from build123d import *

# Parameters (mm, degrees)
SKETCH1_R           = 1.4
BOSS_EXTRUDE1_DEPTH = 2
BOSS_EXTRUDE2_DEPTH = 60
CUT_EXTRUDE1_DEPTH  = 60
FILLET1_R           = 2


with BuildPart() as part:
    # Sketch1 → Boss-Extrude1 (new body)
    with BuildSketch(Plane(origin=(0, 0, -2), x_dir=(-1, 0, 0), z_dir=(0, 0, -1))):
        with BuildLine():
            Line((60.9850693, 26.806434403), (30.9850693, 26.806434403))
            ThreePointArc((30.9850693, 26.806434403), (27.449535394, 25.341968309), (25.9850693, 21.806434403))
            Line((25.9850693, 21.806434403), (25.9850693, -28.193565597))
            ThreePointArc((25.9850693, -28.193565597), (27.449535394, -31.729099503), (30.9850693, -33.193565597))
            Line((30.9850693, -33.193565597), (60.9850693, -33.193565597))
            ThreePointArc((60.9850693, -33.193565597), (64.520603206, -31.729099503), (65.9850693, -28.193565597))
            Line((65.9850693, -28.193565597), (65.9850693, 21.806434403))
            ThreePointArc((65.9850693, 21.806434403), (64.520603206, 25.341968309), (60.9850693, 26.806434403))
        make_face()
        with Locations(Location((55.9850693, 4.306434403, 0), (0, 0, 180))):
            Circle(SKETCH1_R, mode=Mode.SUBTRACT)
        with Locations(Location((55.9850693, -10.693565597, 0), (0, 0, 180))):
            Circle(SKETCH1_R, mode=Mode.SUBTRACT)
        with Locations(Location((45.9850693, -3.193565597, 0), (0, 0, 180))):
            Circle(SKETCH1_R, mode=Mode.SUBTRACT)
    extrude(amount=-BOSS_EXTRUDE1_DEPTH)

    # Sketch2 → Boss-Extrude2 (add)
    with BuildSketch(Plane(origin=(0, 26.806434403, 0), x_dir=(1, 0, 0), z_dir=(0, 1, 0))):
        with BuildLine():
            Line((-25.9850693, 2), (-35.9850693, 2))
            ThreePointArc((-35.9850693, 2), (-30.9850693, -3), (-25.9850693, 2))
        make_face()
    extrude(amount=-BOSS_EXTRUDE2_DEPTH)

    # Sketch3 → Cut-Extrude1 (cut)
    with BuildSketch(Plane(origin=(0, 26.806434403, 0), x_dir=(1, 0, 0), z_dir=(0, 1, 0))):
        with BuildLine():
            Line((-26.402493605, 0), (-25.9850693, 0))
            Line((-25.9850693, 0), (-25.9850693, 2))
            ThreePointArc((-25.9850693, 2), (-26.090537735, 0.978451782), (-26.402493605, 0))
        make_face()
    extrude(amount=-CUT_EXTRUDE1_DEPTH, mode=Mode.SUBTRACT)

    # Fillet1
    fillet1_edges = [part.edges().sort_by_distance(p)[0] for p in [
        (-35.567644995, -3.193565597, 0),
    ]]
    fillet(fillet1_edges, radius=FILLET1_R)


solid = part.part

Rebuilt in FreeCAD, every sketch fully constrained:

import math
import FreeCAD as App
import Part
import Sketcher
Q = App.Units.Quantity


def edges_at(feature, points):
    """Names of the edges that pass closest to the given points."""
    edges = feature.Shape.Edges
    near = lambda p: min(range(len(edges)), key=lambda i: edges[i].distToShape(Part.Vertex(*p))[0])
    return sorted({f"Edge{near(p) + 1}" for p in points})

doc = App.newDocument("Part")
body = doc.addObject("PartDesign::Body", "Body")

sketch1 = body.newObject("Sketcher::SketchObject", "Sketch")
sketch1.AttachmentSupport = (doc.getObject("XY_Plane"), [""])
sketch1.MapMode = "FlatFace"
sketch1.AttachmentOffset = App.Placement(App.Vector(0, 0, -2), App.Rotation())
sketch1.addGeometry(Part.LineSegment(App.Vector(-61, 26.8, 0), App.Vector(-31, 26.8, 0)), False)
sketch1.addGeometry(Part.ArcOfCircle(Part.Circle(App.Vector(-31, 21.8, 0), App.Vector(0, 0, 1), 5), math.radians(0), math.radians(90)), False)
sketch1.addGeometry(Part.LineSegment(App.Vector(-26, 21.8, 0), App.Vector(-26, -28.2, 0)), False)
sketch1.addGeometry(Part.ArcOfCircle(Part.Circle(App.Vector(-31, -28.2, 0), App.Vector(0, 0, 1), 5), math.radians(-90), math.radians(0)), False)
sketch1.addGeometry(Part.LineSegment(App.Vector(-31, -33.2, 0), App.Vector(-61, -33.2, 0)), False)
sketch1.addGeometry(Part.ArcOfCircle(Part.Circle(App.Vector(-61, -28.2, 0), App.Vector(0, 0, 1), 5), math.radians(180), math.radians(270)), False)
sketch1.addGeometry(Part.LineSegment(App.Vector(-66, -28.2, 0), App.Vector(-66, 21.8, 0)), False)
sketch1.addGeometry(Part.ArcOfCircle(Part.Circle(App.Vector(-61, 21.8, 0), App.Vector(0, 0, 1), 5), math.radians(90), math.radians(180)), False)
sketch1.addGeometry(Part.Circle(App.Vector(-56, -10.7, 0), App.Vector(0, 0, 1), 1.4), False)
sketch1.addGeometry(Part.Circle(App.Vector(-46, -3.2, 0), App.Vector(0, 0, 1), 1.4), False)
sketch1.addGeometry(Part.Circle(App.Vector(-56, 4.3, 0), App.Vector(0, 0, 1), 1.4), False)
sketch1.addConstraint(Sketcher.Constraint("Tangent", 0, 2, 1, 2))
sketch1.addConstraint(Sketcher.Constraint("Tangent", 1, 1, 2, 1))
sketch1.addConstraint(Sketcher.Constraint("Tangent", 2, 2, 3, 2))
sketch1.addConstraint(Sketcher.Constraint("Tangent", 3, 1, 4, 1))
sketch1.addConstraint(Sketcher.Constraint("Tangent", 4, 2, 5, 2))
sketch1.addConstraint(Sketcher.Constraint("Tangent", 5, 1, 6, 1))
sketch1.addConstraint(Sketcher.Constraint("Tangent", 6, 2, 7, 2))
sketch1.addConstraint(Sketcher.Constraint("Tangent", 7, 1, 0, 1))
sketch1.addConstraint(Sketcher.Constraint("Horizontal", 0))
sketch1.addConstraint(Sketcher.Constraint("Vertical", 2))
sketch1.addConstraint(Sketcher.Constraint("Horizontal", 4))
sketch1.addConstraint(Sketcher.Constraint("Vertical", 6))
sketch1.addConstraint(Sketcher.Constraint("Equal", 1, 3))
sketch1.addConstraint(Sketcher.Constraint("Equal", 3, 5))
sketch1.addConstraint(Sketcher.Constraint("Equal", 5, 7))
sketch1.addConstraint(Sketcher.Constraint("Equal", 8, 9))
sketch1.addConstraint(Sketcher.Constraint("Equal", 9, 10))
sketch1.addConstraint(Sketcher.Constraint("Vertical", 8, 3, 10, 3))
sketch1.addConstraint(Sketcher.Constraint("Radius", 1, Q("5 mm")))
sketch1.addConstraint(Sketcher.Constraint("Diameter", 8, Q("2.8 mm")))
sketch1.addConstraint(Sketcher.Constraint("DistanceX", 0, 1, 0, 2, Q("30 mm")))
sketch1.addConstraint(Sketcher.Constraint("DistanceY", 2, 2, 2, 1, Q("50 mm")))
sketch1.addConstraint(Sketcher.Constraint("DistanceX", 5, 3, 8, 3, Q("5 mm")))
sketch1.addConstraint(Sketcher.Constraint("DistanceX", 8, 3, 9, 3, Q("10 mm")))
sketch1.addConstraint(Sketcher.Constraint("DistanceY", 9, 3, 1, 3, Q("25 mm")))
sketch1.addConstraint(Sketcher.Constraint("DistanceY", 8, 3, 10, 3, Q("15 mm")))
sketch1.addConstraint(Sketcher.Constraint("DistanceY", 5, 3, 8, 3, Q("17.5 mm")))
sketch1.addConstraint(Sketcher.Constraint("DistanceX", 1, 3, -1, 1, Q("30.985069 mm")))
sketch1.addConstraint(Sketcher.Constraint("DistanceY", -1, 1, 1, 3, Q("21.806434 mm")))
pad1 = body.newObject("PartDesign::Pad", "Pad")
pad1.Profile = sketch1
pad1.Length = 2

sketch2 = body.newObject("Sketcher::SketchObject", "Sketch001")
sketch2.AttachmentSupport = (doc.getObject("XZ_Plane"), [""])
sketch2.MapMode = "FlatFace"
sketch2.AttachmentOffset = App.Placement(App.Vector(0, 0, -26.806434), App.Rotation())
sketch2.addGeometry(Part.LineSegment(App.Vector(-26, -2, 0), App.Vector(-36, -2, 0)), False)
sketch2.addGeometry(Part.ArcOfCircle(Part.Circle(App.Vector(-31, -2, 0), App.Vector(0, 0, 1), 5), math.radians(0), math.radians(180)), False)
sketch2.addConstraint(Sketcher.Constraint("Coincident", 0, 1, 1, 1))
sketch2.addConstraint(Sketcher.Constraint("Coincident", 1, 2, 0, 2))
sketch2.addConstraint(Sketcher.Constraint("Horizontal", 0))
sketch2.addConstraint(Sketcher.Constraint("Horizontal", 1, 3, 0, 1))
sketch2.addConstraint(Sketcher.Constraint("Radius", 1, Q("5 mm")))
sketch2.addConstraint(Sketcher.Constraint("DistanceY", 1, 3, -1, 1, Q("2 mm")))
sketch2.addConstraint(Sketcher.Constraint("DistanceX", 1, 3, -1, 1, Q("30.985069 mm")))
pad2 = body.newObject("PartDesign::Pad", "Pad001")
pad2.Profile = sketch2
pad2.Length = 60

sketch3 = body.newObject("Sketcher::SketchObject", "Sketch002")
sketch3.AttachmentSupport = (doc.getObject("XZ_Plane"), [""])
sketch3.MapMode = "FlatFace"
sketch3.AttachmentOffset = App.Placement(App.Vector(0, 0, -26.806434), App.Rotation())
sketch3.addGeometry(Part.LineSegment(App.Vector(-26.4, 0, 0), App.Vector(-25.99, 0, 0)), False)
sketch3.addGeometry(Part.LineSegment(App.Vector(-25.99, 0, 0), App.Vector(-25.99, -2, 0)), False)
sketch3.addGeometry(Part.ArcOfCircle(Part.Circle(App.Vector(-30.99, -2, 0), App.Vector(0, 0, 1), 5), math.radians(0), math.radians(24)), False)
sketch3.addConstraint(Sketcher.Constraint("Coincident", 0, 2, 1, 1))
sketch3.addConstraint(Sketcher.Constraint("Tangent", 1, 2, 2, 1))
sketch3.addConstraint(Sketcher.Constraint("Coincident", 2, 2, 0, 1))
sketch3.addConstraint(Sketcher.Constraint("Horizontal", 0))
sketch3.addConstraint(Sketcher.Constraint("Vertical", 1))
sketch3.addConstraint(Sketcher.Constraint("PointOnObject", 0, 2, -1))
sketch3.addConstraint(Sketcher.Constraint("Radius", 2, Q("5 mm")))
sketch3.addConstraint(Sketcher.Constraint("DistanceY", 1, 2, 1, 1, Q("2 mm")))
sketch3.addConstraint(Sketcher.Constraint("DistanceX", 2, 3, -1, 1, Q("30.985069 mm")))
pocket1 = body.newObject("PartDesign::Pocket", "Pocket")
pocket1.Profile = sketch3
pocket1.Length = 60
pocket1.Reversed = True
doc.recompute()

fillet = body.newObject("PartDesign::Fillet", "Fillet")
fillet.Base = (pocket1, edges_at(pocket1, [(-35.568, -3.194, 0)]))
fillet.Radius = 2

doc.recompute()
